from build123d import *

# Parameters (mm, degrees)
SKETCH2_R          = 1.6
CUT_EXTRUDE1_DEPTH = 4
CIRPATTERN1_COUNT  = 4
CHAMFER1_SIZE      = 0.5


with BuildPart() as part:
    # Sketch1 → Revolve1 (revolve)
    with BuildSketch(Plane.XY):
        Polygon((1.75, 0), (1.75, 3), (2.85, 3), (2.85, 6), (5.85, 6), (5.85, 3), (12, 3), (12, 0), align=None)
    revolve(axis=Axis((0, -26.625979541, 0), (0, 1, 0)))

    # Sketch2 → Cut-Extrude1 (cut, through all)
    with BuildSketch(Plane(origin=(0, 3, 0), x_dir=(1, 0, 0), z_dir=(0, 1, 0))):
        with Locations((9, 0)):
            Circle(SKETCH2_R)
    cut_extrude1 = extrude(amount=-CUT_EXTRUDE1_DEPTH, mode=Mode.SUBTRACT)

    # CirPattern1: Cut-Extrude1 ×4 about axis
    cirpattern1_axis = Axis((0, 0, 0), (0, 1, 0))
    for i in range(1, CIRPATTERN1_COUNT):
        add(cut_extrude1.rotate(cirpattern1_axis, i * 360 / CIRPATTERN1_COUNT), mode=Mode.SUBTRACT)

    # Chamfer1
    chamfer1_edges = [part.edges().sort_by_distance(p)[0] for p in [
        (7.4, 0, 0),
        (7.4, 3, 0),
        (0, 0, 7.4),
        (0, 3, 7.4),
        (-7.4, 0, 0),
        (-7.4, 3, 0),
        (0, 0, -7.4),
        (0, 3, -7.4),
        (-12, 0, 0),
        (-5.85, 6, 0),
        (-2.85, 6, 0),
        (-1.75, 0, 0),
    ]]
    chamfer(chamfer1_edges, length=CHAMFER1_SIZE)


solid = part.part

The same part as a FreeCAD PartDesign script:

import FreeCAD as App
import Part
import Sketcher
from FreeCAD import Vector
Q = App.Units.Quantity


def edges_at(feature, points):
    """Names of the edges that pass closest to the given points."""
    edges = feature.Shape.Edges
    near = lambda p: min(range(len(edges)), key=lambda i: edges[i].distToShape(Part.Vertex(*p))[0])
    return sorted({f"Edge{near(p) + 1}" for p in points})

doc = App.newDocument("Part")
body = doc.addObject("PartDesign::Body", "Body")

sketch1 = doc.addObject("Sketcher::SketchObject", "Sketch")
body.addObject(sketch1)
sketch1.AttachmentSupport = (doc.XY_Plane, [""])
sketch1.MapMode = "FlatFace"
sketch1.addGeometry([
    Part.LineSegment(Vector(1.75, 3, 0), Vector(1.75, 0, 0)),
    Part.LineSegment(Vector(1.75, 0, 0), Vector(12, 0, 0)),
    Part.LineSegment(Vector(12, 0, 0), Vector(12, 3, 0)),
    Part.LineSegment(Vector(12, 3, 0), Vector(5.85, 3, 0)),
    Part.LineSegment(Vector(5.85, 3, 0), Vector(5.85, 6, 0)),
    Part.LineSegment(Vector(5.85, 6, 0), Vector(2.85, 6, 0)),
    Part.LineSegment(Vector(2.85, 6, 0), Vector(2.85, 3, 0)),
    Part.LineSegment(Vector(2.85, 3, 0), Vector(1.75, 3, 0)),
], False)
sketch1.addConstraint([
    Sketcher.Constraint("Coincident", 0, 2, 1, 1),
    Sketcher.Constraint("Coincident", 1, 2, 2, 1),
    Sketcher.Constraint("Coincident", 2, 2, 3, 1),
    Sketcher.Constraint("Coincident", 3, 2, 4, 1),
    Sketcher.Constraint("Coincident", 4, 2, 5, 1),
    Sketcher.Constraint("Coincident", 5, 2, 6, 1),
    Sketcher.Constraint("Coincident", 6, 2, 7, 1),
    Sketcher.Constraint("Coincident", 7, 2, 0, 1),
    Sketcher.Constraint("Vertical", 0),
    Sketcher.Constraint("Horizontal", 1),
    Sketcher.Constraint("Vertical", 2),
    Sketcher.Constraint("Horizontal", 3),
    Sketcher.Constraint("Vertical", 4),
    Sketcher.Constraint("Horizontal", 5),
    Sketcher.Constraint("Vertical", 6),
    Sketcher.Constraint("Horizontal", 7),
    Sketcher.Constraint("PointOnObject", 0, 2, -1),
    Sketcher.Constraint("Horizontal", 3, 2, 6, 2),
    Sketcher.Constraint("Equal", 5, 0),
    Sketcher.Constraint("Equal", 2, 4),
    Sketcher.Constraint("DistanceX", 5, 2, 5, 1, Q("3 mm")),
    Sketcher.Constraint("DistanceX", 7, 2, 7, 1, Q("1.1 mm")),
    Sketcher.Constraint("DistanceX", -1, 1, 1, 2, Q("12 mm")),
    Sketcher.Constraint("DistanceX", 1, 1, 1, 2, Q("10.25 mm")),
])
revolution = doc.addObject("PartDesign::Revolution", "Revolution")
body.addObject(revolution)
revolution.Profile = sketch1
revolution.ReferenceAxis = (sketch1, ["V_Axis"])
revolution.Angle = 360

sketch2 = doc.addObject("Sketcher::SketchObject", "Sketch001")
body.addObject(sketch2)
sketch2.AttachmentSupport = (doc.XZ_Plane, [""])
sketch2.MapMode = "FlatFace"
sketch2.AttachmentOffset = App.Placement(Vector(0, 0, -3), App.Rotation())
sketch2.addGeometry(Part.Circle(Vector(9, 0, 0), Vector(0, 0, 1), 1.6), False)
sketch2.addConstraint([
    Sketcher.Constraint("PointOnObject", 0, 3, -1),
    Sketcher.Constraint("Diameter", 0, Q("3.2 mm")),
    Sketcher.Constraint("DistanceX", -1, 1, 0, 3, Q("9 mm")),
])
pocket1 = doc.addObject("PartDesign::Pocket", "Pocket")
body.addObject(pocket1)
pocket1.Profile = sketch2
pocket1.Type = "ThroughAll"
pocket1.Reversed = True
doc.recompute()

polarpattern = doc.addObject("PartDesign::PolarPattern", "PolarPattern")
body.addObject(polarpattern)
polarpattern.Originals = [pocket1]
polarpattern.Axis = (doc.Y_Axis, [""])
polarpattern.Angle = 360
polarpattern.Occurrences = 4
body.Tip = polarpattern
doc.recompute()

chamfer = doc.addObject("PartDesign::Chamfer", "Chamfer")
body.addObject(chamfer)
chamfer.Base = (polarpattern, edges_at(polarpattern, [
    (7.4, 0, 0),
    (7.4, 3, 0),
    (0, 0, 7.4),
    (0, 3, 7.4),
    (-7.4, 0, 0),
    (-7.4, 3, 0),
    (0, 0, -7.4),
    (0, 3, -7.4),
    (-12, 0, 0),
    (-5.85, 6, 0),
    (-2.85, 6, 0),
    (-1.75, 0, 0),
]))
chamfer.Size = 0.5

doc.recompute()
